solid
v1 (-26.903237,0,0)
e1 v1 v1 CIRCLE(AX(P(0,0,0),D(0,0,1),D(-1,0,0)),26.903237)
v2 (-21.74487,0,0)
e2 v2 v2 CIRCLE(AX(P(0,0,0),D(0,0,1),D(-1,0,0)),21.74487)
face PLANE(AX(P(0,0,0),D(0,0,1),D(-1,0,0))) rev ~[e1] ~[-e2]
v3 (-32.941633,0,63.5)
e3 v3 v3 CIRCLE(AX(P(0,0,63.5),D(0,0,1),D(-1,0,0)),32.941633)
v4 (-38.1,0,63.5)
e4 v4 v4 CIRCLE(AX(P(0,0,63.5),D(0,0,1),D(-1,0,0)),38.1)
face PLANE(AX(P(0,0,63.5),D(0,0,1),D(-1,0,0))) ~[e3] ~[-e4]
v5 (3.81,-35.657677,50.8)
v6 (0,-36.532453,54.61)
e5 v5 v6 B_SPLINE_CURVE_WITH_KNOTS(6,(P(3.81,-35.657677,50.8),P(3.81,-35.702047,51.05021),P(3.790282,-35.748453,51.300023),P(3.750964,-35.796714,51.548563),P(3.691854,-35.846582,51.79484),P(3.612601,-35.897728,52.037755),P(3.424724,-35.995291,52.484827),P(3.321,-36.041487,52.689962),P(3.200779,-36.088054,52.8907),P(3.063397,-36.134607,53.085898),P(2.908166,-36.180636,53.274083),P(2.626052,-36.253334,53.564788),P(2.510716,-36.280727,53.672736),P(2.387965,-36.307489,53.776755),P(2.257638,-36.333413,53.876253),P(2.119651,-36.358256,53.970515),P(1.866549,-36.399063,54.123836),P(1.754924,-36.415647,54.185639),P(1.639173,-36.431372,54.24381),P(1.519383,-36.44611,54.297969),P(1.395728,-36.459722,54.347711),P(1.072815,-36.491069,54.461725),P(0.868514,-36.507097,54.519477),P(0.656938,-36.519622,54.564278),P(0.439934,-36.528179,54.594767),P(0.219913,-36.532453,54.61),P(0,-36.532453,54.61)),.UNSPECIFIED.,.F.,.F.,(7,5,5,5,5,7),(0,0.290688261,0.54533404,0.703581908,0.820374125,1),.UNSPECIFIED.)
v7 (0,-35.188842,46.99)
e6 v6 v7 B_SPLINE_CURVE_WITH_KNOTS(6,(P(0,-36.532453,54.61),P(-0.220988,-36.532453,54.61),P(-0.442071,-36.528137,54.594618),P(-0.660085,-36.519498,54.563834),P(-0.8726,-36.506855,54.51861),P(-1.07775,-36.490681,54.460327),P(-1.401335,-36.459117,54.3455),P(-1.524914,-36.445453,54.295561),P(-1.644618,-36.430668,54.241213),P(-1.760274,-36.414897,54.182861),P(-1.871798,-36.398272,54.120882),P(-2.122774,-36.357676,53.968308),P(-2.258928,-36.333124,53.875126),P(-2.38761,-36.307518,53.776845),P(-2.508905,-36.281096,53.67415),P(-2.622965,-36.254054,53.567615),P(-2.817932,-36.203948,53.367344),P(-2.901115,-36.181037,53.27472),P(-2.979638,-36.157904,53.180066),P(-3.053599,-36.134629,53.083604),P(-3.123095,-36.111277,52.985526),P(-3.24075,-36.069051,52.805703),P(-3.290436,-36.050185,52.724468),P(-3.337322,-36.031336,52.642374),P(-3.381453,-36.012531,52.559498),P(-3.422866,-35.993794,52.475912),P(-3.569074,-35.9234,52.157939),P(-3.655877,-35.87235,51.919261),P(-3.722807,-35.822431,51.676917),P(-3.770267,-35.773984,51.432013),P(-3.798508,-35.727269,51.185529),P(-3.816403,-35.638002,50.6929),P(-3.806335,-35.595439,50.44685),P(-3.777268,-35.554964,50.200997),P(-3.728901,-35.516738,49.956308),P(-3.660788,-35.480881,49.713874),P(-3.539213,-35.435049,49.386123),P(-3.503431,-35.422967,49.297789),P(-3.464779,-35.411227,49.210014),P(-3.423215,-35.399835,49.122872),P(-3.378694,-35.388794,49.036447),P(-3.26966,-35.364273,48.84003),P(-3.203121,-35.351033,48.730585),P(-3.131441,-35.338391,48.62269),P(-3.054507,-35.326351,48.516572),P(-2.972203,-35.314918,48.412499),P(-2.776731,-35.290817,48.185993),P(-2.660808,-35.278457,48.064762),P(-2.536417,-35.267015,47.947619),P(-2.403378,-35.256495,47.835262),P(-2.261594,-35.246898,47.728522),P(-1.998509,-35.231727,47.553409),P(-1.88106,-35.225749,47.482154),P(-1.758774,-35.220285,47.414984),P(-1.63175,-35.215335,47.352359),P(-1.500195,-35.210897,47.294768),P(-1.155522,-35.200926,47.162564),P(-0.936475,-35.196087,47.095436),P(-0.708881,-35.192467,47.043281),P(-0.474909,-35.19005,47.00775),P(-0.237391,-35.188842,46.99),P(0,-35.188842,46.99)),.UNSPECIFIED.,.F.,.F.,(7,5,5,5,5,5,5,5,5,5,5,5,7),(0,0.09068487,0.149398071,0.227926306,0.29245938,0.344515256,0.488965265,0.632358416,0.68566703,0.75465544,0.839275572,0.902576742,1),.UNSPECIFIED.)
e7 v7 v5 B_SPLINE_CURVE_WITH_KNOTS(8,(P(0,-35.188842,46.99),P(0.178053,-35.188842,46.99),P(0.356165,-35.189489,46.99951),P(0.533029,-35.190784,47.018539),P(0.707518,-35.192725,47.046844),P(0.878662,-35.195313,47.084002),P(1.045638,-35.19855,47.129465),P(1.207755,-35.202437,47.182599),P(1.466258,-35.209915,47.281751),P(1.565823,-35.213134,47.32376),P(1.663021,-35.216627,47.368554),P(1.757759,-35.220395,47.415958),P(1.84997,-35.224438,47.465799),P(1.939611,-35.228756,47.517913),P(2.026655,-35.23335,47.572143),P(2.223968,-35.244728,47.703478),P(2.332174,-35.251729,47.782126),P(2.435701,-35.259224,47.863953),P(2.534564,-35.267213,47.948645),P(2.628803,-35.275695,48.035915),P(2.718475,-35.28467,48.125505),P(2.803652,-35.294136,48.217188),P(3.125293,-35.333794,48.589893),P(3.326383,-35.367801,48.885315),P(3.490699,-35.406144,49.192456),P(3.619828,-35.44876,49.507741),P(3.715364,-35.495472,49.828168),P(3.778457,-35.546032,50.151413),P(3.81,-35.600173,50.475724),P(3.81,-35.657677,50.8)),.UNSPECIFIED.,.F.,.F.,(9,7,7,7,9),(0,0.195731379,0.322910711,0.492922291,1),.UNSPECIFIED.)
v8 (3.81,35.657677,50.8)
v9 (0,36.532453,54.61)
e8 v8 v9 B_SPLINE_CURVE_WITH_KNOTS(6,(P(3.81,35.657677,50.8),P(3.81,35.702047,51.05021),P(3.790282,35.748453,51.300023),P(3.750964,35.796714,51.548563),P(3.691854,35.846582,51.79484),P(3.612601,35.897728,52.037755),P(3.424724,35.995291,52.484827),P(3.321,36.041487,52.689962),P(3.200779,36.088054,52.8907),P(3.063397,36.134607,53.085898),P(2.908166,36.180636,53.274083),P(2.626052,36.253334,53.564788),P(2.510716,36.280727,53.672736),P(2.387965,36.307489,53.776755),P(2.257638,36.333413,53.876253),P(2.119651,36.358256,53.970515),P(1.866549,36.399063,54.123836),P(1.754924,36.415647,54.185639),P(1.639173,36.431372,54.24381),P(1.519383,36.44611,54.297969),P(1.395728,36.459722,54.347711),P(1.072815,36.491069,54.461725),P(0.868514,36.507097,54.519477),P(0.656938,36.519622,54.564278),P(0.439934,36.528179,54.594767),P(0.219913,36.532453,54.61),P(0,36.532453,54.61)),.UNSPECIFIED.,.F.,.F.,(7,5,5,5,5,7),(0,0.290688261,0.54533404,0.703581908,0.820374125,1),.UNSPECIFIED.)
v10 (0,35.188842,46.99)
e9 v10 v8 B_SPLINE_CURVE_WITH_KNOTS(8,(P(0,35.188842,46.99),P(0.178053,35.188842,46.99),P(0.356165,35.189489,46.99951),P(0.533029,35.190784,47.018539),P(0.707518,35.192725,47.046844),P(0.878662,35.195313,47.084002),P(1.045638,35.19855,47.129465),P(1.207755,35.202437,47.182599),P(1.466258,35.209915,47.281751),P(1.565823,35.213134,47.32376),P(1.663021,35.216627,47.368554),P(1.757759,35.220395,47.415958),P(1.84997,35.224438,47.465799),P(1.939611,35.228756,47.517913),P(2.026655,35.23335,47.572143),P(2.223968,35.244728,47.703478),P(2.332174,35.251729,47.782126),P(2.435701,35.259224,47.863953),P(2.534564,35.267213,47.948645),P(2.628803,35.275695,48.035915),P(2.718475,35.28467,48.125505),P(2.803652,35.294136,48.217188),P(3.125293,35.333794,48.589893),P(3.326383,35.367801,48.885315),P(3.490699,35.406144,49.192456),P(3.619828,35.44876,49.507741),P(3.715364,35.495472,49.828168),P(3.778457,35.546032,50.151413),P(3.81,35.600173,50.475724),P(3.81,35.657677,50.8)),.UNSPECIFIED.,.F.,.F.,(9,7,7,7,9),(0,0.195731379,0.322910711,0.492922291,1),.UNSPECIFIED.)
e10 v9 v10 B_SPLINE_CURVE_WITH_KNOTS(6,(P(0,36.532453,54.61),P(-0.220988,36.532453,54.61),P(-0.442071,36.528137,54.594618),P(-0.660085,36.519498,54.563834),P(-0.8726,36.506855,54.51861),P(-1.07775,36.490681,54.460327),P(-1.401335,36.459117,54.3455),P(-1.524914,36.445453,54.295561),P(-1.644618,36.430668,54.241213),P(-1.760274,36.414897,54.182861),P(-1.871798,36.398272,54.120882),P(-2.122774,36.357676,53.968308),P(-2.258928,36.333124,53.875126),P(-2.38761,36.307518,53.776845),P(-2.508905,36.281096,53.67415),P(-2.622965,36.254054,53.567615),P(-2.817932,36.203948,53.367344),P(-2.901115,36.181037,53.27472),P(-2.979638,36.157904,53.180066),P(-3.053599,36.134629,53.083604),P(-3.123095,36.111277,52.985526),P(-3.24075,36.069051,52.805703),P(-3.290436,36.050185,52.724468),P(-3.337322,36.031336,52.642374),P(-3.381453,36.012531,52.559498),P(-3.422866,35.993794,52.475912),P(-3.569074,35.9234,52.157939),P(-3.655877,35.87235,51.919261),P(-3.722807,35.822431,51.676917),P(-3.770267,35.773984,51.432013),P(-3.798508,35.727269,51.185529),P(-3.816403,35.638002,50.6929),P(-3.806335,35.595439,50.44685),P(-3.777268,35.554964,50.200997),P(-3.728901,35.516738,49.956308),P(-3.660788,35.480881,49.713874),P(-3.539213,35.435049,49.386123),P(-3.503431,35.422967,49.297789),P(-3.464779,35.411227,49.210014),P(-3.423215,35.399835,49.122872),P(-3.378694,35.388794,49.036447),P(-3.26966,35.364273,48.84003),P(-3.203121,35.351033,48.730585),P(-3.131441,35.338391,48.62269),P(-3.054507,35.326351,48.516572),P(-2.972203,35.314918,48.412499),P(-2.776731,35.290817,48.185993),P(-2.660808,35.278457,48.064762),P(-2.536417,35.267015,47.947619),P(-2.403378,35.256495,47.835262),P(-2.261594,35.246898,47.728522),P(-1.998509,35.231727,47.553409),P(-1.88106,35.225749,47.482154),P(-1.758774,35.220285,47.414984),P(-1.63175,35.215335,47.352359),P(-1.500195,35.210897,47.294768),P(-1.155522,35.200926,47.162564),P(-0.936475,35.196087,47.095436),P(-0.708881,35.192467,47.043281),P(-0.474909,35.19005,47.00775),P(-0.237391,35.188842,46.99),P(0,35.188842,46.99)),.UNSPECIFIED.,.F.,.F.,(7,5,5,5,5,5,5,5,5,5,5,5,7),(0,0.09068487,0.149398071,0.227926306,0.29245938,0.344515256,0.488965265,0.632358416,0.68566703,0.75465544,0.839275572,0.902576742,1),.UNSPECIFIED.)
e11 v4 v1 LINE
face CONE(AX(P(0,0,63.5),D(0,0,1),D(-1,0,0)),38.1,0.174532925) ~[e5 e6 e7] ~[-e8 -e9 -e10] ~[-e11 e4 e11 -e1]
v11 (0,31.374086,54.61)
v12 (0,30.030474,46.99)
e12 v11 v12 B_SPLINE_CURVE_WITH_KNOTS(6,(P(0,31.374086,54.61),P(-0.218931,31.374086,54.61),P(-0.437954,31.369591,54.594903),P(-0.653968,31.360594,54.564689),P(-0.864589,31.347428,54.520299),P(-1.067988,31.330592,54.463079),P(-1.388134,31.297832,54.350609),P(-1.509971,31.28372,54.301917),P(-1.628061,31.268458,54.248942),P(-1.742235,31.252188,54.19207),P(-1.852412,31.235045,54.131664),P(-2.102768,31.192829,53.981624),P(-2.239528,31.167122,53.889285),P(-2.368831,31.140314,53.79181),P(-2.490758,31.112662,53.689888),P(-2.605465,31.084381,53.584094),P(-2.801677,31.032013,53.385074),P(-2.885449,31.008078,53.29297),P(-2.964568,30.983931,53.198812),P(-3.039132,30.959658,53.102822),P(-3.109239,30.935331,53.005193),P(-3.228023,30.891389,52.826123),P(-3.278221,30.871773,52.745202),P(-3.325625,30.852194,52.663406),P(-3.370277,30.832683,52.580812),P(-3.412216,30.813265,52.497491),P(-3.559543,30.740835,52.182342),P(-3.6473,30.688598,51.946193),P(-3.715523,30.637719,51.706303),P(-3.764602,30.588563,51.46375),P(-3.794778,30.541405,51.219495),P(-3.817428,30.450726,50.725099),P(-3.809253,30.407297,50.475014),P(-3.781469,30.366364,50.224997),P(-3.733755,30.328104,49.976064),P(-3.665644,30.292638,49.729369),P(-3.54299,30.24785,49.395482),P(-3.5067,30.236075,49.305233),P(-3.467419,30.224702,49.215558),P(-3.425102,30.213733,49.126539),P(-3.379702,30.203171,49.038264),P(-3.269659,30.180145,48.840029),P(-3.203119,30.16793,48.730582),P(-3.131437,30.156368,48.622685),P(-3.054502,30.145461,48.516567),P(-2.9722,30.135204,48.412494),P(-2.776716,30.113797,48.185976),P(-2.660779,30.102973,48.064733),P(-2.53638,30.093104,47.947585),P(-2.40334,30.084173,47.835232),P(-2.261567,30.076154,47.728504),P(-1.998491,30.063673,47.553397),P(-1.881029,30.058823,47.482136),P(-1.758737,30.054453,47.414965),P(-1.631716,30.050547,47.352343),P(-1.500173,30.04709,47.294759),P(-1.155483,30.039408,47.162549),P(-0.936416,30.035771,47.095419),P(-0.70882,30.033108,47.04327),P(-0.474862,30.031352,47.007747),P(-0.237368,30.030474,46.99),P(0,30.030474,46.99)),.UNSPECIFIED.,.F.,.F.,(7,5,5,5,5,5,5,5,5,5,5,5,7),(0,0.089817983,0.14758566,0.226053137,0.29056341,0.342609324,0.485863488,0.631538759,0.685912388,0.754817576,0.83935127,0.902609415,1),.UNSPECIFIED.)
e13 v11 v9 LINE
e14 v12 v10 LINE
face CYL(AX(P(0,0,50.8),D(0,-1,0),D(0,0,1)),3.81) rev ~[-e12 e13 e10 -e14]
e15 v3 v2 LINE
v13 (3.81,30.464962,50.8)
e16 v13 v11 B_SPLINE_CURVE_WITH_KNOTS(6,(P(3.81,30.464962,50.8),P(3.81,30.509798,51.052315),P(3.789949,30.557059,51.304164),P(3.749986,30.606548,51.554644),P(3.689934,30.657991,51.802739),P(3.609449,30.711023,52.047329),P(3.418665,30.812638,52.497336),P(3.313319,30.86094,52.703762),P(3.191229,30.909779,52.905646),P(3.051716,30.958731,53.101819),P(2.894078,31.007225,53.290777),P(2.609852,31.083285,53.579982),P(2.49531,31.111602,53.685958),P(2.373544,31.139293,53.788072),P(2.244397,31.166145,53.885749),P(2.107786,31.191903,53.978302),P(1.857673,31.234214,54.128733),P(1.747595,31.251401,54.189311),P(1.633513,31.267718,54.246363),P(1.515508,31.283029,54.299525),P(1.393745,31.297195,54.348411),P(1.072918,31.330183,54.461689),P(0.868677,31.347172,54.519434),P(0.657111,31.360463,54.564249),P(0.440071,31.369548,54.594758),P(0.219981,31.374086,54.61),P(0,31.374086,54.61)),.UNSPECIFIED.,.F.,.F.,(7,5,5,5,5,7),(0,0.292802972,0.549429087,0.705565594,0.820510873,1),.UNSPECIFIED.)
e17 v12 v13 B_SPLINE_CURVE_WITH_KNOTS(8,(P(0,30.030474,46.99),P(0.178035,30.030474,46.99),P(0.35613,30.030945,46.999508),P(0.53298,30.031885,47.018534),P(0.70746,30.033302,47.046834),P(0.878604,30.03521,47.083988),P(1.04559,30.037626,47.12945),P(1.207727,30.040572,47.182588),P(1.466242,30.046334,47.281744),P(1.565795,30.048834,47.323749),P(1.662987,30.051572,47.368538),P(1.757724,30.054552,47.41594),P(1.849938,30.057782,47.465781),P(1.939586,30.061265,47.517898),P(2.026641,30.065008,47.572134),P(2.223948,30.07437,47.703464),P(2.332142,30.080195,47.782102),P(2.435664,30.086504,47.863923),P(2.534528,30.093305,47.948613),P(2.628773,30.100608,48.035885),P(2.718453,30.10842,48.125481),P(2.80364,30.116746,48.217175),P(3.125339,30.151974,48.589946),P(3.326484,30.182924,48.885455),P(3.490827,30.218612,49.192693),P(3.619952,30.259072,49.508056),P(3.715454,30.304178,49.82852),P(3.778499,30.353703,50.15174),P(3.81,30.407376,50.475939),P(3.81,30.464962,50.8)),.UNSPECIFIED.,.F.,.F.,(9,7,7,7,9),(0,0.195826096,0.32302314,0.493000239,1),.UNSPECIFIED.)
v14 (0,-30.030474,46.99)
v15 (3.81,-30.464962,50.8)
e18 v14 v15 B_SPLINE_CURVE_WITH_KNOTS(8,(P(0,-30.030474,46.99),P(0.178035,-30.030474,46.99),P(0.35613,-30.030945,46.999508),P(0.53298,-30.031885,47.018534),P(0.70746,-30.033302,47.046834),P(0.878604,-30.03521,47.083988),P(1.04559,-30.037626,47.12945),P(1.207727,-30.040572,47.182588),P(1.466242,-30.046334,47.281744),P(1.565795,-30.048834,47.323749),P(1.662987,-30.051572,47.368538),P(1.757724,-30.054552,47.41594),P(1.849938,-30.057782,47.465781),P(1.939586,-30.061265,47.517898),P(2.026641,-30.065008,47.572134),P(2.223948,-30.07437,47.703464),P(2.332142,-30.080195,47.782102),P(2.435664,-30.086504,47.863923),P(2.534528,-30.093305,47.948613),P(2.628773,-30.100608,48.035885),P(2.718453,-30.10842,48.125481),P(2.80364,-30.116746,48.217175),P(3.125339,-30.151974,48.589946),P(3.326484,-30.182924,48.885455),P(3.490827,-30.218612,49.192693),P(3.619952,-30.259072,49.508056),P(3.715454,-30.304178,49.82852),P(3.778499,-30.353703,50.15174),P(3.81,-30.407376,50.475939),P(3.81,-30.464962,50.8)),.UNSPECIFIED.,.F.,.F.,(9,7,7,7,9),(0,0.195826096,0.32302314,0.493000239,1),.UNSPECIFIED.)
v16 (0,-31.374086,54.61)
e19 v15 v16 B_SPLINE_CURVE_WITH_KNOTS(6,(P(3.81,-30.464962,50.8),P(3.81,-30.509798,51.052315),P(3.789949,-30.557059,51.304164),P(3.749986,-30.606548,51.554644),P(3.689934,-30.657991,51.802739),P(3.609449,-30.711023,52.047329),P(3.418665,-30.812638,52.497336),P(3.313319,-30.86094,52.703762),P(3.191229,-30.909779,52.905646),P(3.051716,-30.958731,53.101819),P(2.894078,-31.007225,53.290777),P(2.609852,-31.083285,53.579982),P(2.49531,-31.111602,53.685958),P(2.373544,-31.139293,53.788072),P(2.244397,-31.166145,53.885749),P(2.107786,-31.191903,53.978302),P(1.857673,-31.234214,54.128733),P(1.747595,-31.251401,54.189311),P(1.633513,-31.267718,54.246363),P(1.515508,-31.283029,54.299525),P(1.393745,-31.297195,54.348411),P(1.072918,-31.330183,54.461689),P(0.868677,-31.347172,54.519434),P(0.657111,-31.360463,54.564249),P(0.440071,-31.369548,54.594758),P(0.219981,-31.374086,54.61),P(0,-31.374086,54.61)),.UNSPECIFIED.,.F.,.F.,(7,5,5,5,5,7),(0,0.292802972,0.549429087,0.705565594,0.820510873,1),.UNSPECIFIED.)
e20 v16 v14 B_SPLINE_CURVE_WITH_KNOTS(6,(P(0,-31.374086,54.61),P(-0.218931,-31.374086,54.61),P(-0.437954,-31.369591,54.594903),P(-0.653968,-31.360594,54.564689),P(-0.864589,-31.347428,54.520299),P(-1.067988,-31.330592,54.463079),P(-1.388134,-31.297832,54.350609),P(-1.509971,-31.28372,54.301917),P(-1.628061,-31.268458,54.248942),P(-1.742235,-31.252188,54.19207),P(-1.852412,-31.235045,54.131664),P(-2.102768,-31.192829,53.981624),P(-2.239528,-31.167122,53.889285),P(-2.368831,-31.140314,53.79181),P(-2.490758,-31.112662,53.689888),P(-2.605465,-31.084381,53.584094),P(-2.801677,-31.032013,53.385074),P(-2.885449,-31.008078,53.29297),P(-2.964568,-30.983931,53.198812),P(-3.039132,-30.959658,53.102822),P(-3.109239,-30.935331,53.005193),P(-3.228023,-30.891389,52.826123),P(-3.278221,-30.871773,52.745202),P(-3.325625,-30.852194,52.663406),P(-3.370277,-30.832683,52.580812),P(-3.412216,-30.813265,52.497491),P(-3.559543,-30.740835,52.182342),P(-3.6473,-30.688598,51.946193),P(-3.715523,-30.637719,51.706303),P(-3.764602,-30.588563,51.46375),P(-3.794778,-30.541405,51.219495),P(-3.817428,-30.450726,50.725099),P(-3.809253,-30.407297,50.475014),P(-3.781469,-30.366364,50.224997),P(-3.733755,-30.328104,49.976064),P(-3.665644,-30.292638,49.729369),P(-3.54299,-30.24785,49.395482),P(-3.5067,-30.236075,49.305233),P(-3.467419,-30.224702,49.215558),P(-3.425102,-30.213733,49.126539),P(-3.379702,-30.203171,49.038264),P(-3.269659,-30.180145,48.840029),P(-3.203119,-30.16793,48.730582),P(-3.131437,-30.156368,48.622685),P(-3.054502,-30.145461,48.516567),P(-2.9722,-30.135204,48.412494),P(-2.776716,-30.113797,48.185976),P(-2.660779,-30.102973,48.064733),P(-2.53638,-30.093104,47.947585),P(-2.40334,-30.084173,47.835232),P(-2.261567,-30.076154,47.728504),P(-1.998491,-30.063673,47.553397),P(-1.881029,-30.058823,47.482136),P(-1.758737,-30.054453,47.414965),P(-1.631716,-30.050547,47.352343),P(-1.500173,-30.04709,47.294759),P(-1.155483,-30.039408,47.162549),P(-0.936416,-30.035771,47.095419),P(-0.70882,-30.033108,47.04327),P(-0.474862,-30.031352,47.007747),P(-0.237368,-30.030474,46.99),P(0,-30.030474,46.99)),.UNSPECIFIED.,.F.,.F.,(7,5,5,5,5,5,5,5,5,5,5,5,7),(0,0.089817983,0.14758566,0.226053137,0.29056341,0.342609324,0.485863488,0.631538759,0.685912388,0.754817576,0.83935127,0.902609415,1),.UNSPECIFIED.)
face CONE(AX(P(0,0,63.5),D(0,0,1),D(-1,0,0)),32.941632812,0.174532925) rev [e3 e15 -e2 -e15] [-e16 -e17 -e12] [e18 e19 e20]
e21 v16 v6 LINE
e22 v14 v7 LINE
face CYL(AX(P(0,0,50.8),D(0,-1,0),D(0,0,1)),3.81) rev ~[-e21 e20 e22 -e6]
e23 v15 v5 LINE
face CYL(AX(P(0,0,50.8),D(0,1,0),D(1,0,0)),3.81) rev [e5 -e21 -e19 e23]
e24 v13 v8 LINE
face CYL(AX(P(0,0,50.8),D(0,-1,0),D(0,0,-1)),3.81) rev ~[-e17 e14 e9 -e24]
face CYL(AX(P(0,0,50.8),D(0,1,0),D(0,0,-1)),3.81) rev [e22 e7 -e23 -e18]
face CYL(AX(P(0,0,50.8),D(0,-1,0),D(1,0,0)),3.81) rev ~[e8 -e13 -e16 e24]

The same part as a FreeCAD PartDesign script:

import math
import FreeCAD as App
import Part
import Sketcher

V = App.Vector
Q = App.Units.Quantity

doc = App.newDocument("Part")
body = doc.addObject("PartDesign::Body", "Body")

# Sketch on XZ plane
sketch1 = body.newObject("Sketcher::SketchObject", "Sketch")
sketch1.AttachmentSupport = (doc.getObject("XZ_Plane"), [""])
sketch1.MapMode = "FlatFace"
sketch1.addGeometry(Part.LineSegment(V(0, 54.61, 0), V(0, 63.5, 0)), False)
sketch1.addGeometry(Part.LineSegment(V(0, 63.5, 0), V(-38.1, 63.5, 0)), False)
sketch1.addGeometry(Part.LineSegment(V(-38.1, 63.5, 0), V(-26.903237, 0, 0)), False)
sketch1.addGeometry(Part.LineSegment(V(-26.903237, 0, 0), V(0, 0, 0)), False)
sketch1.addGeometry(Part.LineSegment(V(0, 0, 0), V(0, 46.99, 0)), False)
sketch1.addGeometry(Part.ArcOfCircle(Part.Circle(V(0, 50.8, 0), V(0, 0, 1), 3.81), math.radians(90), math.radians(270)), False)
sketch1.addConstraint(Sketcher.Constraint("Coincident", 0, 2, 1, 1))
sketch1.addConstraint(Sketcher.Constraint("Coincident", 1, 2, 2, 1))
sketch1.addConstraint(Sketcher.Constraint("Coincident", 2, 2, 3, 1))
sketch1.addConstraint(Sketcher.Constraint("Coincident", 3, 2, 4, 1))
sketch1.addConstraint(Sketcher.Constraint("Coincident", 4, 2, 5, 2))
sketch1.addConstraint(Sketcher.Constraint("Coincident", 5, 1, 0, 1))
sketch1.addConstraint(Sketcher.Constraint("Vertical", 0))
sketch1.addConstraint(Sketcher.Constraint("Horizontal", 1))
sketch1.addConstraint(Sketcher.Constraint("Horizontal", 3))
sketch1.addConstraint(Sketcher.Constraint("Vertical", 4))
sketch1.addConstraint(Sketcher.Constraint("Coincident", 3, 2, -1, 1))
sketch1.addConstraint(Sketcher.Constraint("PointOnObject", 5, 3, -2))
sketch1.addConstraint(Sketcher.Constraint("PointOnObject", 0, 2, -2))
sketch1.addConstraint(Sketcher.Constraint("Radius", 5, Q("0.15 in")))
sketch1.addConstraint(Sketcher.Constraint("DistanceX", 1, 2, 1, 1, Q("1.5 in")))
sketch1.addConstraint(Sketcher.Constraint("DistanceY", -1, 1, 5, 3, Q("2 in")))
sketch1.addConstraint(Sketcher.Constraint("Angle", 2, Q("-80 deg")))
sketch1.addConstraint(Sketcher.Constraint("DistanceY", 0, 1, 0, 2, Q("0.35 in")))
revolution = body.newObject("PartDesign::Revolution", "Revolution")
revolution.Profile = sketch1
revolution.ReferenceAxis = (sketch1, ["V_Axis"])
revolution.Angle = 360

# Sketch on XZ plane
sketch2 = body.newObject("Sketcher::SketchObject", "Sketch001")
sketch2.AttachmentSupport = (doc.getObject("XZ_Plane"), [""])
sketch2.MapMode = "FlatFace"
sketch2.addGeometry(Part.LineSegment(V(0, 54.61, 0), V(0, 63.5, 0)), False)
sketch2.addGeometry(Part.LineSegment(V(0, 63.5, 0), V(-32.941633, 63.5, 0)), False)
sketch2.addGeometry(Part.LineSegment(V(-32.941633, 63.5, 0), V(-21.74487, 0, 0)), False)
sketch2.addGeometry(Part.LineSegment(V(-21.74487, 0, 0), V(0, 0, 0)), False)
sketch2.addGeometry(Part.LineSegment(V(0, 0, 0), V(0, 46.99, 0)), False)
sketch2.addGeometry(Part.ArcOfCircle(Part.Circle(V(0, 50.8, 0), V(0, 0, 1), 3.81), math.radians(90), math.radians(270)), False)
sketch2.addConstraint(Sketcher.Constraint("Coincident", 0, 2, 1, 1))
sketch2.addConstraint(Sketcher.Constraint("Coincident", 1, 2, 2, 1))
sketch2.addConstraint(Sketcher.Constraint("Coincident", 2, 2, 3, 1))
sketch2.addConstraint(Sketcher.Constraint("Coincident", 3, 2, 4, 1))
sketch2.addConstraint(Sketcher.Constraint("Coincident", 4, 2, 5, 2))
sketch2.addConstraint(Sketcher.Constraint("Coincident", 5, 1, 0, 1))
sketch2.addConstraint(Sketcher.Constraint("Vertical", 0))
sketch2.addConstraint(Sketcher.Constraint("Horizontal", 1))
sketch2.addConstraint(Sketcher.Constraint("Horizontal", 3))
sketch2.addConstraint(Sketcher.Constraint("Vertical", 4))
sketch2.addConstraint(Sketcher.Constraint("Coincident", 3, 2, -1, 1))
sketch2.addConstraint(Sketcher.Constraint("PointOnObject", 5, 3, -2))
sketch2.addConstraint(Sketcher.Constraint("PointOnObject", 0, 2, -2))
sketch2.addConstraint(Sketcher.Constraint("Radius", 5, Q("0.15 in")))
sketch2.addConstraint(Sketcher.Constraint("DistanceY", -1, 1, 5, 3, Q("2 in")))
sketch2.addConstraint(Sketcher.Constraint("Angle", 2, Q("-80 deg")))
sketch2.addConstraint(Sketcher.Constraint("DistanceY", 0, 1, 0, 2, Q("0.35 in")))
sketch2.addConstraint(Sketcher.Constraint("DistanceX", 3, 1, 3, 2, 21.74487))
groove = body.newObject("PartDesign::Groove", "Groove")
groove.Profile = sketch2
groove.ReferenceAxis = (sketch2, ["V_Axis"])
groove.Angle = 360

# Sketch on XZ plane
sketch3 = body.newObject("Sketcher::SketchObject", "Sketch002")
sketch3.AttachmentSupport = (doc.getObject("XZ_Plane"), [""])
sketch3.MapMode = "FlatFace"
sketch3.addGeometry(Part.ArcOfCircle(Part.Circle(V(0, 50.8, 0), V(0, 0, 1), 3.81), math.radians(90), math.radians(270)), False)
sketch3.addGeometry(Part.ArcOfCircle(Part.Circle(V(0, 50.8, 0), V(0, 0, 1), 3.81), math.radians(-90), math.radians(0)), False)
sketch3.addGeometry(Part.ArcOfCircle(Part.Circle(V(0, 50.8, 0), V(0, 0, 1), 3.81), math.radians(0), math.radians(90)), False)
sketch3.addConstraint(Sketcher.Constraint("Tangent", 0, 2, 1, 1))
sketch3.addConstraint(Sketcher.Constraint("Tangent", 1, 2, 2, 1))
sketch3.addConstraint(Sketcher.Constraint("Tangent", 2, 2, 0, 1))
sketch3.addConstraint(Sketcher.Constraint("PointOnObject", 0, 3, -2))
sketch3.addConstraint(Sketcher.Constraint("PointOnObject", 0, 2, -2))
sketch3.addConstraint(Sketcher.Constraint("PointOnObject", 2, 2, -2))
sketch3.addConstraint(Sketcher.Constraint("Horizontal", 2, 3, 1, 2))
sketch3.addConstraint(Sketcher.Constraint("Radius", 0, Q("0.15 in")))
sketch3.addConstraint(Sketcher.Constraint("DistanceY", -1, 1, 0, 3, Q("2 in")))
pocket1 = body.newObject("PartDesign::Pocket", "Pocket")
pocket1.Profile = sketch3
pocket1.Length = Q("6.2 in")
pocket1.Midplane = True

doc.recompute()
